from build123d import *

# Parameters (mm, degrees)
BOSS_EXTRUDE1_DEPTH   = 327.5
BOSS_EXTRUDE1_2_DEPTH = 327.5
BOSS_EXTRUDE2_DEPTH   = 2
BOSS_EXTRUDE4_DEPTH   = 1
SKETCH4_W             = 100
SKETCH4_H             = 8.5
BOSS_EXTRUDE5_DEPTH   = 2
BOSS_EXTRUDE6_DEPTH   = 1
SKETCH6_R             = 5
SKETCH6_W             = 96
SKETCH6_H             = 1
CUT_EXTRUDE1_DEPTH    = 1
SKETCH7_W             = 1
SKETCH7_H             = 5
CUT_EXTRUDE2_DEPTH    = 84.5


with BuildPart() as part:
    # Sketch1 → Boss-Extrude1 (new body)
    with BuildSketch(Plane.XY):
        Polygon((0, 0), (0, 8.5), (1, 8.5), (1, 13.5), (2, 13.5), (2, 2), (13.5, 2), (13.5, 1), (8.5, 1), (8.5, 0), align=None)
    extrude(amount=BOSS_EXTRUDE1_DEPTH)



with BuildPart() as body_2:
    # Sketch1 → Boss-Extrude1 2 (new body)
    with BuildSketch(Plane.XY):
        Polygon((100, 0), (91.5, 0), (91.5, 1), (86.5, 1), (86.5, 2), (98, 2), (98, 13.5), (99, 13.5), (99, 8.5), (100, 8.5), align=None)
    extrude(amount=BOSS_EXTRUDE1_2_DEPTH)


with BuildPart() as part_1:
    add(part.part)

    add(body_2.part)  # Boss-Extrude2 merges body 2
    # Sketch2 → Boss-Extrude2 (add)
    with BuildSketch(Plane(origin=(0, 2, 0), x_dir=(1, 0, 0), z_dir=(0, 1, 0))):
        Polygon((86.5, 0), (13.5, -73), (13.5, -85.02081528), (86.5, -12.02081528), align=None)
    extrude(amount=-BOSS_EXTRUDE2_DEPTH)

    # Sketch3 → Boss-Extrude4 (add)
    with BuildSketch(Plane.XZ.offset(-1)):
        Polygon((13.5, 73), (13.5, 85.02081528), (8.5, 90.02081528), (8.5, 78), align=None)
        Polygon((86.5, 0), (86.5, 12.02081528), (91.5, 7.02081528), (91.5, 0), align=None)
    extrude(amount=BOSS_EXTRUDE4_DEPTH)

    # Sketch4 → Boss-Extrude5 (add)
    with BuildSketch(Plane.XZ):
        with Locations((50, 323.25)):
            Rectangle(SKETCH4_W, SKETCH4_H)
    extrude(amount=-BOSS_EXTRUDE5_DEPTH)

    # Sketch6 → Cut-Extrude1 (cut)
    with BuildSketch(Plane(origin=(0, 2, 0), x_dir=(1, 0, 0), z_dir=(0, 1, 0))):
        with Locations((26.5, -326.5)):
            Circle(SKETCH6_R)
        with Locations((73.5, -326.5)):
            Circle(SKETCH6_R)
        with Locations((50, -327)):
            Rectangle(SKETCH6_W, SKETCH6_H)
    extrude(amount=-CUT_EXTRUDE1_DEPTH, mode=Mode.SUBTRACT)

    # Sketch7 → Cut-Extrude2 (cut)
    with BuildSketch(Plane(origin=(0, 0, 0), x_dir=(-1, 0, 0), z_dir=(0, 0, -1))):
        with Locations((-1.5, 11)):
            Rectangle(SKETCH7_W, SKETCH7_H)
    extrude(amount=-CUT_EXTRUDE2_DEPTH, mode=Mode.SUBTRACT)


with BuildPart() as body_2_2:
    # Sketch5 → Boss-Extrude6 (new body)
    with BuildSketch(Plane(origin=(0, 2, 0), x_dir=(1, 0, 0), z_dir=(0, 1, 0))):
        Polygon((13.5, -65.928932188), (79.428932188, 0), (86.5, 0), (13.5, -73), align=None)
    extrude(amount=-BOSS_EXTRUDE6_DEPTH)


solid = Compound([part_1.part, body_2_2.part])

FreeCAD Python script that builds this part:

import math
import FreeCAD as App
import Part
import Sketcher

V = App.Vector
Q = App.Units.Quantity


def add_polygon(sketch, points):
    """Adds a closed chain of lines whose ends are joined by coincident constraints."""
    first, n = sketch.GeometryCount, len(points)
    for a, b in zip(points, points[1:] + points[:1]):
        sketch.addGeometry(Part.LineSegment(App.Vector(*a, 0), App.Vector(*b, 0)), False)
    for i in range(n):
        sketch.addConstraint(Sketcher.Constraint("Coincident", first + i, 2, first + (i + 1) % n, 1))

doc = App.newDocument("Part")
body = doc.addObject("PartDesign::Body", "Body")

# Sketch on XY plane
sketch1 = doc.addObject("Sketcher::SketchObject", "Sketch")
body.addObject(sketch1)
sketch1.AttachmentSupport = (doc.XY_Plane, [""])
sketch1.MapMode = "FlatFace"
add_polygon(sketch1, [(0, 8.5), (0, 0), (8.5, 0), (8.5, 1), (13.5, 1), (13.5, 2), (2, 2), (2, 13.5), (1, 13.5), (1, 8.5)])  # lines 0-9
sketch1.addConstraint(Sketcher.Constraint("Vertical", 0))
sketch1.addConstraint(Sketcher.Constraint("Horizontal", 1))
sketch1.addConstraint(Sketcher.Constraint("Vertical", 2))
sketch1.addConstraint(Sketcher.Constraint("Horizontal", 3))
sketch1.addConstraint(Sketcher.Constraint("Vertical", 4))
sketch1.addConstraint(Sketcher.Constraint("Horizontal", 5))
sketch1.addConstraint(Sketcher.Constraint("Vertical", 6))
sketch1.addConstraint(Sketcher.Constraint("Horizontal", 7))
sketch1.addConstraint(Sketcher.Constraint("Vertical", 8))
sketch1.addConstraint(Sketcher.Constraint("Horizontal", 9))
sketch1.addConstraint(Sketcher.Constraint("Coincident", 0, 2, -1, 1))
sketch1.addConstraint(Sketcher.Constraint("Equal", 7, 9))
sketch1.addConstraint(Sketcher.Constraint("Equal", 1, 0))
sketch1.addConstraint(Sketcher.Constraint("Equal", 9, 2))
sketch1.addConstraint(Sketcher.Constraint("Equal", 2, 4))
sketch1.addConstraint(Sketcher.Constraint("Equal", 5, 6))
sketch1.addConstraint(Sketcher.Constraint("DistanceX", 3, 1, 3, 2, 5.0))
sketch1.addConstraint(Sketcher.Constraint("DistanceX", 7, 2, 7, 1, 1.0))
sketch1.addConstraint(Sketcher.Constraint("DistanceX", 1, 1, 1, 2, 8.5))
pad1 = doc.addObject("PartDesign::Pad", "Pad")
body.addObject(pad1)
pad1.Profile = sketch1
pad1.Length = 327.5
body2 = doc.addObject("PartDesign::Body", "Body001")

# Sketch on XY plane
sketch2 = doc.addObject("Sketcher::SketchObject", "Sketch001")
body2.addObject(sketch2)
sketch2.AttachmentSupport = (doc.getObject("XY_Plane001"), [""])
sketch2.MapMode = "FlatFace"
add_polygon(sketch2, [(91.5, 0), (100, 0), (100, 8.5), (99, 8.5), (99, 13.5), (98, 13.5), (98, 2), (86.5, 2), (86.5, 1), (91.5, 1)])  # lines 0-9
sketch2.addConstraint(Sketcher.Constraint("Horizontal", 0))
sketch2.addConstraint(Sketcher.Constraint("Vertical", 1))
sketch2.addConstraint(Sketcher.Constraint("Horizontal", 2))
sketch2.addConstraint(Sketcher.Constraint("Vertical", 3))
sketch2.addConstraint(Sketcher.Constraint("Horizontal", 4))
sketch2.addConstraint(Sketcher.Constraint("Vertical", 5))
sketch2.addConstraint(Sketcher.Constraint("Horizontal", 6))
sketch2.addConstraint(Sketcher.Constraint("Vertical", 7))
sketch2.addConstraint(Sketcher.Constraint("Horizontal", 8))
sketch2.addConstraint(Sketcher.Constraint("Vertical", 9))
sketch2.addConstraint(Sketcher.Constraint("PointOnObject", 0, 2, -1))
sketch2.addConstraint(Sketcher.Constraint("Equal", 2, 4))
sketch2.addConstraint(Sketcher.Constraint("Equal", 0, 1))
sketch2.addConstraint(Sketcher.Constraint("Equal", 8, 3))
sketch2.addConstraint(Sketcher.Constraint("Equal", 6, 5))
sketch2.addConstraint(Sketcher.Constraint("Equal", 4, 7))
sketch2.addConstraint(Sketcher.Constraint("DistanceX", 2, 2, 2, 1, 1.0))
sketch2.addConstraint(Sketcher.Constraint("DistanceX", 8, 1, 8, 2, 5.0))
sketch2.addConstraint(Sketcher.Constraint("DistanceX", 0, 1, 0, 2, 8.5))
sketch2.addConstraint(Sketcher.Constraint("DistanceX", -1, 1, 0, 2, 100.0))
pad2 = doc.addObject("PartDesign::Pad", "Pad001")
body2.addObject(pad2)
pad2.Profile = sketch2
pad2.Length = 327.5
body.AllowCompound = True
doc.recompute()

boolean = doc.addObject("PartDesign::Boolean", "Boolean")
body.addObject(boolean)
boolean.Type = "Fuse"
boolean.addObjects([body2])

# Sketch on XZ plane
sketch3 = doc.addObject("Sketcher::SketchObject", "Sketch002")
body.addObject(sketch3)
sketch3.AttachmentSupport = (doc.XZ_Plane, [""])
sketch3.MapMode = "FlatFace"
sketch3.AttachmentOffset = App.Placement(V(0, 0, -2), App.Rotation())
add_polygon(sketch3, [(86, 0), (14, 73), (14, 85), (86, 12)])  # lines 0-3
sketch3.addConstraint(Sketcher.Constraint("Vertical", 1))
sketch3.addConstraint(Sketcher.Constraint("Vertical", 3))
sketch3.addConstraint(Sketcher.Constraint("PointOnObject", 3, 2, -1))
sketch3.addConstraint(Sketcher.Constraint("Parallel", 0, 2))
sketch3.addConstraint(Sketcher.Constraint("Angle", 0, Q("135 deg")))
sketch3.addConstraint(Sketcher.Constraint("DistanceY", -1, 1, 0, 2, 73.0))
sketch3.addConstraint(Sketcher.Constraint("DistanceX", -1, 1, 0, 2, 13.5))
sketch3.addConstraint(Sketcher.Constraint("DistanceY", 1, 1, 1, 2, 12.020815))
pad3 = doc.addObject("PartDesign::Pad", "Pad002")
body.addObject(pad3)
pad3.Profile = sketch3
pad3.Length = 2

# Sketch on XZ plane
sketch4 = doc.addObject("Sketcher::SketchObject", "Sketch003")
body.addObject(sketch4)
sketch4.AttachmentSupport = (doc.XZ_Plane, [""])
sketch4.MapMode = "FlatFace"
sketch4.AttachmentOffset = App.Placement(V(0, 0, -1), App.Rotation())
add_polygon(sketch4, [(14, 73), (14, 85), (8, 90), (8, 78)])  # lines 0-3
add_polygon(sketch4, [(86, 12), (86, 0), (92, 0), (92, 7)])  # lines 4-7
sketch4.addConstraint(Sketcher.Constraint("Vertical", 0))
sketch4.addConstraint(Sketcher.Constraint("Vertical", 2))
sketch4.addConstraint(Sketcher.Constraint("Vertical", 4))
sketch4.addConstraint(Sketcher.Constraint("Horizontal", 5))
sketch4.addConstraint(Sketcher.Constraint("Vertical", 6))
sketch4.addConstraint(Sketcher.Constraint("PointOnObject", 4, 2, -1))
sketch4.addConstraint(Sketcher.Constraint("Parallel", 1, 3))
sketch4.addConstraint(Sketcher.Constraint("Parallel", 3, 7))
sketch4.addConstraint(Sketcher.Constraint("Equal", 2, 4))
sketch4.addConstraint(Sketcher.Constraint("Equal", 3, 7))
sketch4.addConstraint(Sketcher.Constraint("DistanceX", 5, 1, 5, 2, 5.0))
sketch4.addConstraint(Sketcher.Constraint("Angle", 1, Q("135 deg")))
sketch4.addConstraint(Sketcher.Constraint("DistanceY", -1, 1, 2, 2, 78.0))
sketch4.addConstraint(Sketcher.Constraint("DistanceX", 3, 2, 4, 2, 73.0))
sketch4.addConstraint(Sketcher.Constraint("DistanceX", -1, 1, 0, 2, 13.5))
sketch4.addConstraint(Sketcher.Constraint("DistanceY", 0, 1, 0, 2, 12.020815))
pad4 = doc.addObject("PartDesign::Pad", "Pad003")
body.addObject(pad4)
pad4.Profile = sketch4
pad4.Length = 1

# Sketch on XZ plane
sketch5 = doc.addObject("Sketcher::SketchObject", "Sketch004")
body.addObject(sketch5)
sketch5.AttachmentSupport = (doc.XZ_Plane, [""])
sketch5.MapMode = "FlatFace"
add_polygon(sketch5, [(0, 328), (0, 319), (100, 319), (100, 328)])  # lines 0-3
sketch5.addConstraint(Sketcher.Constraint("Vertical", 0))
sketch5.addConstraint(Sketcher.Constraint("Horizontal", 1))
sketch5.addConstraint(Sketcher.Constraint("Vertical", 2))
sketch5.addConstraint(Sketcher.Constraint("Horizontal", 3))
sketch5.addConstraint(Sketcher.Constraint("PointOnObject", 0, 2, -2))
sketch5.addConstraint(Sketcher.Constraint("DistanceX", 1, 1, 1, 2, 100.0))
sketch5.addConstraint(Sketcher.Constraint("DistanceY", 0, 2, 0, 1, 8.5))
sketch5.addConstraint(Sketcher.Constraint("DistanceY", -1, 1, 0, 2, 319.0))
pad5 = doc.addObject("PartDesign::Pad", "Pad004")
body.addObject(pad5)
pad5.Profile = sketch5
pad5.Length = 2
pad5.Reversed = True

# Sketch on XZ plane
sketch6 = doc.addObject("Sketcher::SketchObject", "Sketch005")
body.addObject(sketch6)
sketch6.AttachmentSupport = (doc.XZ_Plane, [""])
sketch6.MapMode = "FlatFace"
sketch6.AttachmentOffset = App.Placement(V(0, 0, -2), App.Rotation())
sketch6.addGeometry(Part.ArcOfCircle(Part.Circle(V(26.5, 326.5, 0), V(0, 0, 1), 5), math.radians(180), math.radians(360)), False)
sketch6.addGeometry(Part.LineSegment(V(21.5, 326.5, 0), V(2, 326.5, 0)), False)
sketch6.addGeometry(Part.LineSegment(V(2, 326.5, 0), V(2, 327.5, 0)), False)
sketch6.addGeometry(Part.LineSegment(V(2, 327.5, 0), V(21.6, 327.5, 0)), False)
sketch6.addGeometry(Part.ArcOfCircle(Part.Circle(V(26.5, 326.5, 0), V(0, 0, 1), 5), math.radians(12), math.radians(168)), False)
sketch6.addGeometry(Part.LineSegment(V(31.4, 327.5, 0), V(68.6, 327.5, 0)), False)
sketch6.addGeometry(Part.ArcOfCircle(Part.Circle(V(73.5, 326.5, 0), V(0, 0, 1), 5), math.radians(12), math.radians(168)), False)
sketch6.addGeometry(Part.LineSegment(V(78.4, 327.5, 0), V(98, 327.5, 0)), False)
sketch6.addGeometry(Part.LineSegment(V(98, 327.5, 0), V(98, 326.5, 0)), False)
sketch6.addGeometry(Part.LineSegment(V(98, 326.5, 0), V(78.5, 326.5, 0)), False)
sketch6.addGeometry(Part.ArcOfCircle(Part.Circle(V(73.5, 326.5, 0), V(0, 0, 1), 5), math.radians(180), math.radians(360)), False)
sketch6.addGeometry(Part.LineSegment(V(68.5, 326.5, 0), V(31.5, 326.5, 0)), False)
sketch6.addConstraint(Sketcher.Constraint("Coincident", 0, 1, 1, 1))
sketch6.addConstraint(Sketcher.Constraint("Coincident", 1, 2, 2, 1))
sketch6.addConstraint(Sketcher.Constraint("Coincident", 2, 2, 3, 1))
sketch6.addConstraint(Sketcher.Constraint("Coincident", 3, 2, 4, 2))
sketch6.addConstraint(Sketcher.Constraint("Coincident", 4, 1, 5, 1))
sketch6.addConstraint(Sketcher.Constraint("Coincident", 5, 2, 6, 2))
sketch6.addConstraint(Sketcher.Constraint("Coincident", 6, 1, 7, 1))
sketch6.addConstraint(Sketcher.Constraint("Coincident", 7, 2, 8, 1))
sketch6.addConstraint(Sketcher.Constraint("Coincident", 8, 2, 9, 1))
sketch6.addConstraint(Sketcher.Constraint("Coincident", 9, 2, 10, 2))
sketch6.addConstraint(Sketcher.Constraint("Coincident", 10, 1, 11, 1))
sketch6.addConstraint(Sketcher.Constraint("Coincident", 11, 2, 0, 2))
sketch6.addConstraint(Sketcher.Constraint("Horizontal", 1))
sketch6.addConstraint(Sketcher.Constraint("Vertical", 2))
sketch6.addConstraint(Sketcher.Constraint("Horizontal", 3))
sketch6.addConstraint(Sketcher.Constraint("Horizontal", 5))
sketch6.addConstraint(Sketcher.Constraint("Horizontal", 7))
sketch6.addConstraint(Sketcher.Constraint("Vertical", 8))
sketch6.addConstraint(Sketcher.Constraint("Horizontal", 9))
sketch6.addConstraint(Sketcher.Constraint("Horizontal", 11))
sketch6.addConstraint(Sketcher.Constraint("Coincident", 4, 3, 0, 3))
sketch6.addConstraint(Sketcher.Constraint("Coincident", 10, 3, 6, 3))
sketch6.addConstraint(Sketcher.Constraint("Equal", 0, 4))
sketch6.addConstraint(Sketcher.Constraint("Equal", 4, 6))
sketch6.addConstraint(Sketcher.Constraint("Equal", 6, 10))
sketch6.addConstraint(Sketcher.Constraint("Horizontal", 4, 3, 6, 3))
sketch6.addConstraint(Sketcher.Constraint("Horizontal", 10, 3, 0, 1))
sketch6.addConstraint(Sketcher.Constraint("Horizontal", 3, 2, 4, 1))
sketch6.addConstraint(Sketcher.Constraint("Horizontal", 5, 2, 6, 1))
sketch6.addConstraint(Sketcher.Constraint("Horizontal", 1, 2, 8, 2))
sketch6.addConstraint(Sketcher.Constraint("Horizontal", 9, 2, 10, 1))
sketch6.addConstraint(Sketcher.Constraint("Equal", 3, 7))
sketch6.addConstraint(Sketcher.Constraint("Radius", 0, 5.0))
sketch6.addConstraint(Sketcher.Constraint("DistanceX", 11, 2, 11, 1, 37.0))
sketch6.addConstraint(Sketcher.Constraint("DistanceY", 2, 1, 2, 2, 1.0))
sketch6.addConstraint(Sketcher.Constraint("DistanceX", 1, 2, 1, 1, 19.5))
sketch6.addConstraint(Sketcher.Constraint("DistanceX", -1, 1, 1, 2, 2.0))
sketch6.addConstraint(Sketcher.Constraint("DistanceY", -1, 1, 0, 3, 326.5))
pocket1 = doc.addObject("PartDesign::Pocket", "Pocket")
body.addObject(pocket1)
pocket1.Profile = sketch6
pocket1.Length = 1
pocket1.Reversed = True

# Sketch on XY plane
sketch7 = doc.addObject("Sketcher::SketchObject", "Sketch006")
body.addObject(sketch7)
sketch7.AttachmentSupport = (doc.XY_Plane, [""])
sketch7.MapMode = "FlatFace"
add_polygon(sketch7, [(2, 13.5), (2, 8.5), (1, 8.5), (1, 13.5)])  # lines 0-3
sketch7.addConstraint(Sketcher.Constraint("Vertical", 0))
sketch7.addConstraint(Sketcher.Constraint("Horizontal", 1))
sketch7.addConstraint(Sketcher.Constraint("Vertical", 2))
sketch7.addConstraint(Sketcher.Constraint("Horizontal", 3))
sketch7.addConstraint(Sketcher.Constraint("DistanceX", 1, 2, 1, 1, 1.0))
sketch7.addConstraint(Sketcher.Constraint("DistanceY", 0, 2, 0, 1, 5.0))
sketch7.addConstraint(Sketcher.Constraint("DistanceX", -1, 1, 0, 2, 2.0))
sketch7.addConstraint(Sketcher.Constraint("DistanceY", -1, 1, 0, 2, 8.5))
pocket2 = doc.addObject("PartDesign::Pocket", "Pocket001")
body.addObject(pocket2)
pocket2.Profile = sketch7
pocket2.Length = 84.5
pocket2.Reversed = True
body3 = doc.addObject("PartDesign::Body", "Body002")

# Sketch on XZ plane
sketch8 = doc.addObject("Sketcher::SketchObject", "Sketch007")
body3.addObject(sketch8)
sketch8.AttachmentSupport = (doc.getObject("XZ_Plane002"), [""])
sketch8.MapMode = "FlatFace"
sketch8.AttachmentOffset = App.Placement(V(0, 0, -2), App.Rotation())
add_polygon(sketch8, [(79, 0), (14, 66), (14, 73), (86, 0)])  # lines 0-3
sketch8.addConstraint(Sketcher.Constraint("Vertical", 1))
sketch8.addConstraint(Sketcher.Constraint("Horizontal", 3))
sketch8.addConstraint(Sketcher.Constraint("PointOnObject", 2, 2, -1))
sketch8.addConstraint(Sketcher.Constraint("Parallel", 0, 2))
sketch8.addConstraint(Sketcher.Constraint("Equal", 3, 1))
sketch8.addConstraint(Sketcher.Constraint("DistanceY", -1, 1, 1, 2, 73.0))
sketch8.addConstraint(Sketcher.Constraint("DistanceX", -1, 1, 0, 2, 13.5))
sketch8.addConstraint(Sketcher.Constraint("Distance", 0, 93.23759))
pad6 = doc.addObject("PartDesign::Pad", "Pad005")
body3.addObject(pad6)
pad6.Profile = sketch8
pad6.Length = 1

doc.recompute()
